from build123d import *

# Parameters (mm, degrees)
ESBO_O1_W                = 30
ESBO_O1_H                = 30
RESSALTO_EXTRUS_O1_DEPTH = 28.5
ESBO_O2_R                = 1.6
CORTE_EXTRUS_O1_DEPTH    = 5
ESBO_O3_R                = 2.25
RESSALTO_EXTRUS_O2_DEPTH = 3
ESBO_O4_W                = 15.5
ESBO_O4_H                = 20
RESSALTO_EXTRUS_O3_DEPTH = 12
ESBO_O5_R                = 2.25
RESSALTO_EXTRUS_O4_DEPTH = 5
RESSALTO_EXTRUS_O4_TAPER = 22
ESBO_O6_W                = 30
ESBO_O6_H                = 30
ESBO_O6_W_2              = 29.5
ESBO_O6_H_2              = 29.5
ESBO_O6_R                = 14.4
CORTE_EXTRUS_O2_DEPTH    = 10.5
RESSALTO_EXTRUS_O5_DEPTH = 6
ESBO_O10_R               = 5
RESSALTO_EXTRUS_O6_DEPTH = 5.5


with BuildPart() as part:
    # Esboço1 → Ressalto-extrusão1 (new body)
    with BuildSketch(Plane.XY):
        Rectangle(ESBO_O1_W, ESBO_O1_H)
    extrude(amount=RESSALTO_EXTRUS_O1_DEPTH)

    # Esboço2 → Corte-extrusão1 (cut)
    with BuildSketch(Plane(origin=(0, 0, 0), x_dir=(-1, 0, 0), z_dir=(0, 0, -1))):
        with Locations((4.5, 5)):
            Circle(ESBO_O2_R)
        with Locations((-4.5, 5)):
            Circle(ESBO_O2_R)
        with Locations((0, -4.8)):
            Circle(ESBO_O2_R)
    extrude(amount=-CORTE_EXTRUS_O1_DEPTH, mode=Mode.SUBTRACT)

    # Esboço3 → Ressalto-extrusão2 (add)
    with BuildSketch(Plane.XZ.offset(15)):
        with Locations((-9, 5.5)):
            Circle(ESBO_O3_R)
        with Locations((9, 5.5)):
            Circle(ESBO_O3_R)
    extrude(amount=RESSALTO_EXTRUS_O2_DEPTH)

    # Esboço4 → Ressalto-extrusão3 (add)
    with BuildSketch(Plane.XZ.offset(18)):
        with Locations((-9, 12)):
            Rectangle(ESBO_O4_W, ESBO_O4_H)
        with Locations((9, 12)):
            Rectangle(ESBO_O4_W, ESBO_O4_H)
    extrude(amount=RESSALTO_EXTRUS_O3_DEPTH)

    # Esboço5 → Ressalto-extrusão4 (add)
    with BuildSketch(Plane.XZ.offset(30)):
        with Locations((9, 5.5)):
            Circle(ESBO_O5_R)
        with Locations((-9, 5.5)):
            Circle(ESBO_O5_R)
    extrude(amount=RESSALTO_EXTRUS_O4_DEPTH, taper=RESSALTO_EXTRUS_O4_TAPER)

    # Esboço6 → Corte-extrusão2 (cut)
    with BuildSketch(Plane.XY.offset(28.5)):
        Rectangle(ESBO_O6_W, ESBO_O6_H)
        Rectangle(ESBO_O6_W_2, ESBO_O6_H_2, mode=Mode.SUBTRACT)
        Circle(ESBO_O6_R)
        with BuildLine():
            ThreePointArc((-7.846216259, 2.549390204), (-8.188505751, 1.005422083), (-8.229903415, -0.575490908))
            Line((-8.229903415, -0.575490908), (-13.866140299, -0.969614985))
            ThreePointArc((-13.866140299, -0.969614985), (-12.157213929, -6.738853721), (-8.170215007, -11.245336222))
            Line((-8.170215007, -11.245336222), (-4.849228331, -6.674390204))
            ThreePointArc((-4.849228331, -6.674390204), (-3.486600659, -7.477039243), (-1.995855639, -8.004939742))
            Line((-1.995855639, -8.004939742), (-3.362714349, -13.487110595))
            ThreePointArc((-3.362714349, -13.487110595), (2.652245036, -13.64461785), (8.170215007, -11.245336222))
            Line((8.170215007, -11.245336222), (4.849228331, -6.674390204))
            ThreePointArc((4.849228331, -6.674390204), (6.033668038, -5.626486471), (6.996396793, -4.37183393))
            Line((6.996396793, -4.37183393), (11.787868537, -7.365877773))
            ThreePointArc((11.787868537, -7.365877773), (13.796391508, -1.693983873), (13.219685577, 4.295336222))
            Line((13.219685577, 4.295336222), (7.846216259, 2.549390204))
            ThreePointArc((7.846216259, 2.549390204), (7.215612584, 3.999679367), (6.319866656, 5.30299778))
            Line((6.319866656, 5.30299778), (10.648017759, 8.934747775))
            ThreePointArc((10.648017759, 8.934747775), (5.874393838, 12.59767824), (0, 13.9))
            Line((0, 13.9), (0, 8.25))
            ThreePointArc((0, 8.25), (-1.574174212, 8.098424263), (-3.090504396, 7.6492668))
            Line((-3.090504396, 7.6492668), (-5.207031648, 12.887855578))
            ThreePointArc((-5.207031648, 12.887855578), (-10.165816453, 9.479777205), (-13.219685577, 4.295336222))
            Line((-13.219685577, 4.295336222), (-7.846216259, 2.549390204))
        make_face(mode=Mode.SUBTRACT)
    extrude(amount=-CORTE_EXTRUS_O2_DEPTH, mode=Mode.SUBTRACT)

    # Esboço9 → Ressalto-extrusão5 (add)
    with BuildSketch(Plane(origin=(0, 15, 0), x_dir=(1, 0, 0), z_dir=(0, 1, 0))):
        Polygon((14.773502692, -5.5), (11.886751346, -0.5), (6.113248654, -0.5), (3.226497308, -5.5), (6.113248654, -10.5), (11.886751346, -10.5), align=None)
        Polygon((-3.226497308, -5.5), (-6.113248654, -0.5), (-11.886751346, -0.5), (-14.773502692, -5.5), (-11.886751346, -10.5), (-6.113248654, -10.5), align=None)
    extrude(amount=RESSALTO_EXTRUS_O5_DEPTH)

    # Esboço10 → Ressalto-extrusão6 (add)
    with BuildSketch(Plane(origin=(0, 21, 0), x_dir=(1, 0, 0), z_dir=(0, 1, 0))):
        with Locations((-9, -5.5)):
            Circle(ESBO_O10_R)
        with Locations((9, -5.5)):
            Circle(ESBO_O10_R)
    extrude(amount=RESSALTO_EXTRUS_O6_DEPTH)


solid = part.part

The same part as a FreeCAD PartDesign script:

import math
import FreeCAD as App
import Part
import Sketcher
from FreeCAD import Vector
Q = App.Units.Quantity

doc = App.newDocument("Part")
body = doc.addObject("PartDesign::Body", "Body")

sketch1 = body.newObject("Sketcher::SketchObject", "Sketch")
sketch1.AttachmentSupport = (doc.getObject("XY_Plane"), [""])
sketch1.MapMode = "FlatFace"
sketch1.addGeometry([
    Part.LineSegment(Vector(-15, 15, 0), Vector(-15, -15, 0)),
    Part.LineSegment(Vector(-15, -15, 0), Vector(15, -15, 0)),
    Part.LineSegment(Vector(15, -15, 0), Vector(15, 15, 0)),
    Part.LineSegment(Vector(15, 15, 0), Vector(-15, 15, 0)),
], False)
sketch1.addConstraint([
    Sketcher.Constraint("Coincident", 0, 2, 1, 1),
    Sketcher.Constraint("Coincident", 1, 2, 2, 1),
    Sketcher.Constraint("Coincident", 2, 2, 3, 1),
    Sketcher.Constraint("Coincident", 3, 2, 0, 1),
    Sketcher.Constraint("Vertical", 0),
    Sketcher.Constraint("Horizontal", 1),
    Sketcher.Constraint("Vertical", 2),
    Sketcher.Constraint("Horizontal", 3),
    Sketcher.Constraint("Symmetric", 0, 2, 2, 2, -1, 1),
    Sketcher.Constraint("Equal", 3, 0),
    Sketcher.Constraint("DistanceX", 1, 1, 1, 2, 30.0),
])
pad1 = body.newObject("PartDesign::Pad", "Pad")
pad1.Profile = sketch1
pad1.Length = 28.5

sketch2 = body.newObject("Sketcher::SketchObject", "Sketch001")
sketch2.AttachmentSupport = (doc.getObject("XY_Plane"), [""])
sketch2.MapMode = "FlatFace"
sketch2.addGeometry([
    Part.Circle(Vector(-4.5, 5, 0), Vector(0, 0, 1), 1.6),
    Part.Circle(Vector(4.5, 5, 0), Vector(0, 0, 1), 1.6),
    Part.Circle(Vector(0, -4.8, 0), Vector(0, 0, 1), 1.6),
], False)
sketch2.addConstraint([
    Sketcher.Constraint("Equal", 0, 1),
    Sketcher.Constraint("Equal", 1, 2),
    Sketcher.Constraint("Symmetric", 0, 3, 1, 3, -2),
    Sketcher.Constraint("PointOnObject", 2, 3, -2),
    Sketcher.Constraint("Diameter", 0, 3.2),
    Sketcher.Constraint("DistanceY", -1, 1, 0, 3, 5.0),
    Sketcher.Constraint("DistanceX", 0, 3, 1, 3, 9.0),
    Sketcher.Constraint("DistanceY", 2, 3, -1, 1, 4.8),
])
pocket1 = body.newObject("PartDesign::Pocket", "Pocket")
pocket1.Profile = sketch2
pocket1.Length = 5
pocket1.Reversed = True

sketch3 = body.newObject("Sketcher::SketchObject", "Sketch002")
sketch3.AttachmentSupport = (doc.getObject("XZ_Plane"), [""])
sketch3.MapMode = "FlatFace"
sketch3.AttachmentOffset = App.Placement(Vector(0, 0, 15), App.Rotation())
sketch3.addGeometry([
    Part.Circle(Vector(-9, 5.5, 0), Vector(0, 0, 1), 2.25),
    Part.Circle(Vector(9, 5.5, 0), Vector(0, 0, 1), 2.25),
], False)
sketch3.addConstraint([
    Sketcher.Constraint("Equal", 0, 1),
    Sketcher.Constraint("Symmetric", 0, 3, 1, 3, -2),
    Sketcher.Constraint("Diameter", 0, 4.5),
    Sketcher.Constraint("DistanceX", 0, 3, -1, 1, 9.0),
    Sketcher.Constraint("DistanceY", -1, 1, 0, 3, 5.5),
])
pad2 = body.newObject("PartDesign::Pad", "Pad001")
pad2.Profile = sketch3
pad2.Length = 3

sketch4 = body.newObject("Sketcher::SketchObject", "Sketch003")
sketch4.AttachmentSupport = (doc.getObject("XZ_Plane"), [""])
sketch4.MapMode = "FlatFace"
sketch4.AttachmentOffset = App.Placement(Vector(0, 0, 18), App.Rotation())
sketch4.addGeometry([
    Part.LineSegment(Vector(-16.75, 22, 0), Vector(-16.75, 2, 0)),
    Part.LineSegment(Vector(-16.75, 2, 0), Vector(-1.25, 2, 0)),
    Part.LineSegment(Vector(-1.25, 2, 0), Vector(-1.25, 22, 0)),
    Part.LineSegment(Vector(-1.25, 22, 0), Vector(-16.75, 22, 0)),
    Part.LineSegment(Vector(1.25, 22, 0), Vector(1.25, 2, 0)),
    Part.LineSegment(Vector(1.25, 2, 0), Vector(16.75, 2, 0)),
    Part.LineSegment(Vector(16.75, 2, 0), Vector(16.75, 22, 0)),
    Part.LineSegment(Vector(16.75, 22, 0), Vector(1.25, 22, 0)),
], False)
sketch4.addConstraint([
    Sketcher.Constraint("Coincident", 0, 2, 1, 1),
    Sketcher.Constraint("Coincident", 1, 2, 2, 1),
    Sketcher.Constraint("Coincident", 2, 2, 3, 1),
    Sketcher.Constraint("Coincident", 3, 2, 0, 1),
    Sketcher.Constraint("Coincident", 4, 2, 5, 1),
    Sketcher.Constraint("Coincident", 5, 2, 6, 1),
    Sketcher.Constraint("Coincident", 6, 2, 7, 1),
    Sketcher.Constraint("Coincident", 7, 2, 4, 1),
    Sketcher.Constraint("Vertical", 0),
    Sketcher.Constraint("Horizontal", 1),
    Sketcher.Constraint("Vertical", 2),
    Sketcher.Constraint("Horizontal", 3),
    Sketcher.Constraint("Vertical", 4),
    Sketcher.Constraint("Horizontal", 5),
    Sketcher.Constraint("Vertical", 6),
    Sketcher.Constraint("Horizontal", 7),
    Sketcher.Constraint("Symmetric", 1, 2, 4, 2, -2),
    Sketcher.Constraint("Symmetric", 3, 2, 6, 2, -2),
    Sketcher.Constraint("DistanceY", 0, 2, 0, 1, 20.0),
    Sketcher.Constraint("DistanceX", 1, 1, 1, 2, 15.5),
    Sketcher.Constraint("DistanceY", -1, 1, 0, 2, 2.0),
    Sketcher.Constraint("DistanceX", 0, 2, 4, 2, 18.0),
])
pad3 = body.newObject("PartDesign::Pad", "Pad002")
pad3.Profile = sketch4
pad3.Length = 12

sketch5 = body.newObject("Sketcher::SketchObject", "Sketch004")
sketch5.AttachmentSupport = (doc.getObject("XZ_Plane"), [""])
sketch5.MapMode = "FlatFace"
sketch5.AttachmentOffset = App.Placement(Vector(0, 0, 30), App.Rotation())
sketch5.addGeometry([
    Part.Circle(Vector(9, 5.5, 0), Vector(0, 0, 1), 2.25),
    Part.Circle(Vector(-9, 5.5, 0), Vector(0, 0, 1), 2.25),
], False)
sketch5.addConstraint([
    Sketcher.Constraint("Equal", 0, 1),
    Sketcher.Constraint("Symmetric", 0, 3, 1, 3, -2),
    Sketcher.Constraint("Diameter", 0, 4.5),
    Sketcher.Constraint("DistanceX", -1, 1, 0, 3, 9.0),
    Sketcher.Constraint("DistanceY", -1, 1, 0, 3, 5.5),
])
pad4 = body.newObject("PartDesign::Pad", "Pad003")
pad4.Profile = sketch5
pad4.Length = 5
pad4.TaperAngle = -22

sketch6 = body.newObject("Sketcher::SketchObject", "Sketch005")
sketch6.AttachmentSupport = (doc.getObject("XY_Plane"), [""])
sketch6.MapMode = "FlatFace"
sketch6.AttachmentOffset = App.Placement(Vector(0, 0, 28.5), App.Rotation())
sketch6.addGeometry([
    Part.LineSegment(Vector(-15, 15, 0), Vector(-15, -15, 0)),
    Part.LineSegment(Vector(-15, -15, 0), Vector(15, -15, 0)),
    Part.LineSegment(Vector(15, -15, 0), Vector(15, 15, 0)),
    Part.LineSegment(Vector(15, 15, 0), Vector(-15, 15, 0)),
    Part.LineSegment(Vector(14.75, -14.75, 0), Vector(-14.75, -14.75, 0)),
    Part.LineSegment(Vector(-14.75, -14.75, 0), Vector(-14.75, 14.75, 0)),
    Part.LineSegment(Vector(-14.75, 14.75, 0), Vector(14.75, 14.75, 0)),
    Part.LineSegment(Vector(14.75, 14.75, 0), Vector(14.75, -14.75, 0)),
    Part.Circle(Vector(0, 0, 0), Vector(0, 0, 1), 14.4),
    Part.ArcOfCircle(Part.Circle(Vector(0, 0, 0), Vector(0, 0, 1), 8.25), math.radians(162), math.radians(184)),
    Part.LineSegment(Vector(-7.846216, 2.54939, 0), Vector(-13.219686, 4.295336, 0)),
    Part.ArcOfCircle(Part.Circle(Vector(0, 0, 0), Vector(0, 0, 1), 13.9), math.radians(112), math.radians(162)),
    Part.LineSegment(Vector(-5.207032, 12.887856, 0), Vector(-3.090504, 7.649267, 0)),
    Part.ArcOfCircle(Part.Circle(Vector(0, 0, 0), Vector(0, 0, 1), 8.25), math.radians(90), math.radians(112)),
    Part.LineSegment(Vector(0, 8.25, 0), Vector(0, 13.9, 0)),
    Part.ArcOfCircle(Part.Circle(Vector(0, 0, 0), Vector(0, 0, 1), 13.9), math.radians(40), math.radians(90)),
    Part.LineSegment(Vector(10.648018, 8.934748, 0), Vector(6.319867, 5.302998, 0)),
    Part.ArcOfCircle(Part.Circle(Vector(0, 0, 0), Vector(0, 0, 1), 8.25), math.radians(18), math.radians(40)),
    Part.LineSegment(Vector(7.846216, 2.54939, 0), Vector(13.219686, 4.295336, 0)),
    Part.ArcOfCircle(Part.Circle(Vector(0, 0, 0), Vector(0, 0, 1), 13.9), math.radians(-32), math.radians(18)),
    Part.LineSegment(Vector(11.787869, -7.365878, 0), Vector(6.996397, -4.371834, 0)),
    Part.ArcOfCircle(Part.Circle(Vector(0, 0, 0), Vector(0, 0, 1), 8.25), math.radians(-54), math.radians(-32)),
    Part.LineSegment(Vector(4.849228, -6.67439, 0), Vector(8.170215, -11.245336, 0)),
    Part.ArcOfCircle(Part.Circle(Vector(0, 0, 0), Vector(0, 0, 1), 13.9), math.radians(-104), math.radians(-54)),
    Part.LineSegment(Vector(-3.362714, -13.487111, 0), Vector(-1.995856, -8.00494, 0)),
    Part.ArcOfCircle(Part.Circle(Vector(0, 0, 0), Vector(0, 0, 1), 8.25), math.radians(-126), math.radians(-104)),
    Part.LineSegment(Vector(-4.849228, -6.67439, 0), Vector(-8.170215, -11.245336, 0)),
    Part.ArcOfCircle(Part.Circle(Vector(0, 0, 0), Vector(0, 0, 1), 13.9), math.radians(-176), math.radians(-126)),
    Part.LineSegment(Vector(-13.86614, -0.969615, 0), Vector(-8.229903, -0.575491, 0)),
], False)
sketch6.addConstraint([
    Sketcher.Constraint("Coincident", 0, 2, 1, 1),
    Sketcher.Constraint("Coincident", 1, 2, 2, 1),
    Sketcher.Constraint("Coincident", 2, 2, 3, 1),
    Sketcher.Constraint("Coincident", 3, 2, 0, 1),
    Sketcher.Constraint("Coincident", 4, 2, 5, 1),
    Sketcher.Constraint("Coincident", 5, 2, 6, 1),
    Sketcher.Constraint("Coincident", 6, 2, 7, 1),
    Sketcher.Constraint("Coincident", 7, 2, 4, 1),
    Sketcher.Constraint("Coincident", 9, 1, 10, 1),
    Sketcher.Constraint("Coincident", 10, 2, 11, 2),
    Sketcher.Constraint("Coincident", 11, 1, 12, 1),
    Sketcher.Constraint("Coincident", 12, 2, 13, 2),
    Sketcher.Constraint("Coincident", 13, 1, 14, 1),
    Sketcher.Constraint("Coincident", 14, 2, 15, 2),
    Sketcher.Constraint("Coincident", 15, 1, 16, 1),
    Sketcher.Constraint("Coincident", 16, 2, 17, 2),
    Sketcher.Constraint("Coincident", 17, 1, 18, 1),
    Sketcher.Constraint("Coincident", 18, 2, 19, 2),
    Sketcher.Constraint("Coincident", 19, 1, 20, 1),
    Sketcher.Constraint("Coincident", 20, 2, 21, 2),
    Sketcher.Constraint("Coincident", 21, 1, 22, 1),
    Sketcher.Constraint("Coincident", 22, 2, 23, 2),
    Sketcher.Constraint("Coincident", 23, 1, 24, 1),
    Sketcher.Constraint("Coincident", 24, 2, 25, 2),
    Sketcher.Constraint("Coincident", 25, 1, 26, 1),
    Sketcher.Constraint("Coincident", 26, 2, 27, 2),
    Sketcher.Constraint("Coincident", 27, 1, 28, 1),
    Sketcher.Constraint("Coincident", 28, 2, 9, 2),
    Sketcher.Constraint("Vertical", 0),
    Sketcher.Constraint("Horizontal", 1),
    Sketcher.Constraint("Vertical", 2),
    Sketcher.Constraint("Horizontal", 3),
    Sketcher.Constraint("Horizontal", 4),
    Sketcher.Constraint("Vertical", 5),
    Sketcher.Constraint("Horizontal", 6),
    Sketcher.Constraint("Vertical", 7),
    Sketcher.Constraint("Vertical", 14),
    Sketcher.Constraint("Coincident", 8, 3, -1, 1),
    Sketcher.Constraint("Coincident", 9, 3, -1, 1),
    Sketcher.Constraint("Coincident", 11, 3, -1, 1),
    Sketcher.Constraint("Coincident", 13, 3, -1, 1),
    Sketcher.Constraint("Coincident", 15, 3, -1, 1),
    Sketcher.Constraint("Coincident", 17, 3, -1, 1),
    Sketcher.Constraint("Coincident", 19, 3, -1, 1),
    Sketcher.Constraint("Coincident", 21, 3, -1, 1),
    Sketcher.Constraint("Coincident", 23, 3, -1, 1),
    Sketcher.Constraint("Coincident", 25, 3, -1, 1),
    Sketcher.Constraint("Coincident", 27, 3, -1, 1),
    Sketcher.Constraint("Equal", 9, 13),
    Sketcher.Constraint("Equal", 11, 15),
    Sketcher.Constraint("Equal", 13, 17),
    Sketcher.Constraint("Equal", 15, 19),
    Sketcher.Constraint("Equal", 17, 21),
    Sketcher.Constraint("Equal", 19, 23),
    Sketcher.Constraint("Equal", 21, 25),
    Sketcher.Constraint("Equal", 23, 27),
    Sketcher.Constraint("Symmetric", 0, 2, 2, 2, -1, 1),
    Sketcher.Constraint("Symmetric", 4, 2, 6, 2, -1, 1),
    Sketcher.Constraint("PointOnObject", 13, 1, -2),
    Sketcher.Constraint("Horizontal", 9, 1, 17, 1),
    Sketcher.Constraint("Horizontal", 10, 2, 18, 2),
    Sketcher.Constraint("Horizontal", 21, 1, 25, 1),
    Sketcher.Constraint("Horizontal", 22, 2, 26, 2),
    Sketcher.Constraint("Equal", 3, 0),
    Sketcher.Constraint("Equal", 6, 5),
    Sketcher.Constraint("Diameter", 8, 28.8),
    Sketcher.Constraint("Radius", 11, 13.9),
    Sketcher.Constraint("DistanceX", 1, 1, 1, 2, 30.0),
    Sketcher.Constraint("Angle", 10, Q("162 deg")),
    Sketcher.Constraint("Angle", 12, Q("-68 deg")),
    Sketcher.Constraint("Angle", 16, Q("-140 deg")),
    Sketcher.Constraint("Angle", 20, Q("148 deg")),
    Sketcher.Constraint("Angle", 22, Q("-54 deg")),
    Sketcher.Constraint("Angle", 24, Q("76 deg")),
    Sketcher.Constraint("Angle", 28, Q("4 deg")),
    Sketcher.Constraint("Radius", 9, 8.25),
    Sketcher.Constraint("DistanceX", 4, 2, 4, 1, 29.5),
    Sketcher.Constraint("DistanceX", 16, 2, 19, 1, 5.468002),
    Sketcher.Constraint("DistanceX", 17, 1, 15, 1, 2.801802),
    Sketcher.Constraint("DistanceX", 26, 2, 23, 1, 4.807501),
    Sketcher.Constraint("DistanceY", 25, 1, 28, 2, 6.098899),
    Sketcher.Constraint("DistanceY", -1, 1, 9, 1, 2.54939),
    Sketcher.Constraint("DistanceX", 11, 1, -1, 1, 5.207032),
    Sketcher.Constraint("DistanceX", -1, 1, 21, 1, 4.849228),
])
pocket2 = body.newObject("PartDesign::Pocket", "Pocket001")
pocket2.Profile = sketch6
pocket2.Length = 10.5

sketch7 = body.newObject("Sketcher::SketchObject", "Sketch006")
sketch7.AttachmentSupport = (doc.getObject("XZ_Plane"), [""])
sketch7.MapMode = "FlatFace"
sketch7.AttachmentOffset = App.Placement(Vector(0, 0, -15), App.Rotation())
sketch7.addGeometry([
    Part.LineSegment(Vector(14.773503, 5.5, 0), Vector(11.886751, 0.5, 0)),
    Part.LineSegment(Vector(11.886751, 0.5, 0), Vector(6.113249, 0.5, 0)),
    Part.LineSegment(Vector(6.113249, 0.5, 0), Vector(3.226497, 5.5, 0)),
    Part.LineSegment(Vector(3.226497, 5.5, 0), Vector(6.113249, 10.5, 0)),
    Part.LineSegment(Vector(6.113249, 10.5, 0), Vector(11.886751, 10.5, 0)),
    Part.LineSegment(Vector(11.886751, 10.5, 0), Vector(14.773503, 5.5, 0)),
    Part.LineSegment(Vector(-3.226497, 5.5, 0), Vector(-6.113249, 0.5, 0)),
    Part.LineSegment(Vector(-6.113249, 0.5, 0), Vector(-11.886751, 0.5, 0)),
    Part.LineSegment(Vector(-11.886751, 0.5, 0), Vector(-14.773503, 5.5, 0)),
    Part.LineSegment(Vector(-14.773503, 5.5, 0), Vector(-11.886751, 10.5, 0)),
    Part.LineSegment(Vector(-11.886751, 10.5, 0), Vector(-6.113249, 10.5, 0)),
    Part.LineSegment(Vector(-6.113249, 10.5, 0), Vector(-3.226497, 5.5, 0)),
], False)
sketch7.addConstraint([
    Sketcher.Constraint("Coincident", 0, 2, 1, 1),
    Sketcher.Constraint("Coincident", 1, 2, 2, 1),
    Sketcher.Constraint("Coincident", 2, 2, 3, 1),
    Sketcher.Constraint("Coincident", 3, 2, 4, 1),
    Sketcher.Constraint("Coincident", 4, 2, 5, 1),
    Sketcher.Constraint("Coincident", 5, 2, 0, 1),
    Sketcher.Constraint("Coincident", 6, 2, 7, 1),
    Sketcher.Constraint("Coincident", 7, 2, 8, 1),
    Sketcher.Constraint("Coincident", 8, 2, 9, 1),
    Sketcher.Constraint("Coincident", 9, 2, 10, 1),
    Sketcher.Constraint("Coincident", 10, 2, 11, 1),
    Sketcher.Constraint("Coincident", 11, 2, 6, 1),
    Sketcher.Constraint("Horizontal", 1),
    Sketcher.Constraint("Horizontal", 4),
    Sketcher.Constraint("Horizontal", 7),
    Sketcher.Constraint("Horizontal", 10),
    Sketcher.Constraint("Symmetric", 1, 2, 6, 2, -2),
    Sketcher.Constraint("Symmetric", 5, 2, 8, 2, -2),
    Sketcher.Constraint("Symmetric", 4, 2, 9, 2, -2),
    Sketcher.Constraint("Symmetric", 2, 2, 11, 2, -2),
    Sketcher.Constraint("Parallel", 0, 3),
    Sketcher.Constraint("Parallel", 2, 5),
    Sketcher.Constraint("Parallel", 3, 6),
    Sketcher.Constraint("Parallel", 5, 8),
    Sketcher.Constraint("Parallel", 8, 11),
    Sketcher.Constraint("Horizontal", 2, 2, 5, 2),
    Sketcher.Constraint("Vertical", 1, 2, 3, 2),
    Sketcher.Constraint("Angle", 0, Q("-120 deg")),
    Sketcher.Constraint("DistanceY", 1, 2, 2, 2, 5.0),
    Sketcher.Constraint("DistanceX", 6, 2, 0, 2, 18.0),
    Sketcher.Constraint("DistanceY", -1, 1, 0, 2, 0.5),
    Sketcher.Constraint("DistanceX", 1, 2, 1, 1, 5.773503),
])
pad5 = body.newObject("PartDesign::Pad", "Pad004")
pad5.Profile = sketch7
pad5.Length = 6
pad5.Reversed = True

sketch8 = body.newObject("Sketcher::SketchObject", "Sketch007")
sketch8.AttachmentSupport = (doc.getObject("XZ_Plane"), [""])
sketch8.MapMode = "FlatFace"
sketch8.AttachmentOffset = App.Placement(Vector(0, 0, -21), App.Rotation())
sketch8.addGeometry([
    Part.Circle(Vector(-9, 5.5, 0), Vector(0, 0, 1), 5),
    Part.Circle(Vector(9, 5.5, 0), Vector(0, 0, 1), 5),
], False)
sketch8.addConstraint([
    Sketcher.Constraint("Equal", 0, 1),
    Sketcher.Constraint("Symmetric", 0, 3, 1, 3, -2),
    Sketcher.Constraint("Diameter", 0, 10.0),
    Sketcher.Constraint("DistanceX", 0, 3, -1, 1, 9.0),
    Sketcher.Constraint("DistanceY", -1, 1, 0, 3, 5.5),
])
pad6 = body.newObject("PartDesign::Pad", "Pad005")
pad6.Profile = sketch8
pad6.Length = 5.5
pad6.Reversed = True

doc.recompute()
